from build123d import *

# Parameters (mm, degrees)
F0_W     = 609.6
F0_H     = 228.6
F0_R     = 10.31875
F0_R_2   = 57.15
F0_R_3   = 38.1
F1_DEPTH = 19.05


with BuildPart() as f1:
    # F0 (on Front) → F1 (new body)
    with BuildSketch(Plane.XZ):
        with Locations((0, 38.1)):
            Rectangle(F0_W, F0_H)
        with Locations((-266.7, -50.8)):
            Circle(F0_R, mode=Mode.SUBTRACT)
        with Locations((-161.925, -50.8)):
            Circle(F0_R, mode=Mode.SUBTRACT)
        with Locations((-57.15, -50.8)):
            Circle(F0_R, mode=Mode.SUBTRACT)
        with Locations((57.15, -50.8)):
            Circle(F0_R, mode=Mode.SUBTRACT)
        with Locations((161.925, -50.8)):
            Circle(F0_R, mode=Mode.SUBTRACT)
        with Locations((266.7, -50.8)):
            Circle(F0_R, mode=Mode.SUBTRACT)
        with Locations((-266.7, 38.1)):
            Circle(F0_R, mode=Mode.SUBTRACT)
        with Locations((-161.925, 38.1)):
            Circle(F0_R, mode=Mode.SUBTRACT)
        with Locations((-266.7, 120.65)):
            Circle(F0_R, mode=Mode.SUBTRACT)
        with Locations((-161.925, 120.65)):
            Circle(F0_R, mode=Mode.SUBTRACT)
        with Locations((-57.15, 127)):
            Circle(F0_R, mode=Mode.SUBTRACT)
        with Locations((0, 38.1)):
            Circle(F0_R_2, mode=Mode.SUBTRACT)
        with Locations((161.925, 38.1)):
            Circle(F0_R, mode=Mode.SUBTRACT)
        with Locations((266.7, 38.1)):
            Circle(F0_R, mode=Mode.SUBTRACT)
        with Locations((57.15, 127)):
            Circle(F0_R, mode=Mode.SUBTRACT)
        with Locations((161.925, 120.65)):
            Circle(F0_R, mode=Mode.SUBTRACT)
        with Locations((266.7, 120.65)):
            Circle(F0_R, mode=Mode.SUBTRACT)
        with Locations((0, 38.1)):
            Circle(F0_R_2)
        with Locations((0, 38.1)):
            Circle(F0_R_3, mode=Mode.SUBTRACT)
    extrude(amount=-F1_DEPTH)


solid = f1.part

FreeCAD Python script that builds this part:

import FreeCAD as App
import Part
import Sketcher
from FreeCAD import Vector
Q = App.Units.Quantity


def add_polygon(sketch, points):
    """Adds a closed chain of lines whose ends are joined by coincident constraints."""
    first, n = sketch.GeometryCount, len(points)
    for a, b in zip(points, points[1:] + points[:1]):
        sketch.addGeometry(Part.LineSegment(App.Vector(*a, 0), App.Vector(*b, 0)), False)
    for i in range(n):
        sketch.addConstraint(Sketcher.Constraint("Coincident", first + i, 2, first + (i + 1) % n, 1))

doc = App.newDocument("Part")
params = doc.addObject("Spreadsheet::Sheet", "Params")
for row, (alias, value) in enumerate([
    ("sketch1_diameter", "3 in"),
    ("sketch1_width", "24 in"),
    ("sketch1_height", "9 in"),
    ("sketch1_diameter2", "0.8125 in"),
    ("pad1_length", "0.75 in"),
], start=1):
    params.set(f"A{row}", alias)
    params.set(f"B{row}", "=" + value)
    params.setAlias(f"B{row}", alias)

body = doc.addObject("PartDesign::Body", "Body")

sketch1 = body.newObject("Sketcher::SketchObject", "Sketch")
sketch1.AttachmentSupport = (doc.getObject("XZ_Plane"), [""])
sketch1.MapMode = "FlatFace"
add_polygon(sketch1, [(-305, 152), (-305, -76), (305, -76), (305, 152)])
sketch1.addGeometry(Part.Circle(Vector(-267, -51, 0), Vector(0, 0, 1), 10), False)
sketch1.addGeometry(Part.Circle(Vector(-162, -51, 0), Vector(0, 0, 1), 10), False)
sketch1.addGeometry(Part.Circle(Vector(-57, -51, 0), Vector(0, 0, 1), 10), False)
sketch1.addGeometry(Part.Circle(Vector(57, -51, 0), Vector(0, 0, 1), 10), False)
sketch1.addGeometry(Part.Circle(Vector(162, -51, 0), Vector(0, 0, 1), 10), False)
sketch1.addGeometry(Part.Circle(Vector(267, -51, 0), Vector(0, 0, 1), 10), False)
sketch1.addGeometry(Part.Circle(Vector(-267, 38, 0), Vector(0, 0, 1), 10), False)
sketch1.addGeometry(Part.Circle(Vector(-162, 38, 0), Vector(0, 0, 1), 10), False)
sketch1.addGeometry(Part.Circle(Vector(-267, 121, 0), Vector(0, 0, 1), 10), False)
sketch1.addGeometry(Part.Circle(Vector(-162, 121, 0), Vector(0, 0, 1), 10), False)
sketch1.addGeometry(Part.Circle(Vector(-57, 127, 0), Vector(0, 0, 1), 10), False)
sketch1.addGeometry(Part.Circle(Vector(0, 38, 0), Vector(0, 0, 1), 38), False)
sketch1.addGeometry(Part.Circle(Vector(162, 38, 0), Vector(0, 0, 1), 10), False)
sketch1.addGeometry(Part.Circle(Vector(267, 38, 0), Vector(0, 0, 1), 10), False)
sketch1.addGeometry(Part.Circle(Vector(57, 127, 0), Vector(0, 0, 1), 10), False)
sketch1.addGeometry(Part.Circle(Vector(162, 121, 0), Vector(0, 0, 1), 10), False)
sketch1.addGeometry(Part.Circle(Vector(267, 121, 0), Vector(0, 0, 1), 10), False)
sketch1.addConstraint([
    Sketcher.Constraint("Vertical", 0),
    Sketcher.Constraint("Horizontal", 1),
    Sketcher.Constraint("Vertical", 2),
    Sketcher.Constraint("Horizontal", 3),
    Sketcher.Constraint("Equal", 4, 5),
    Sketcher.Constraint("Equal", 5, 6),
    Sketcher.Constraint("Equal", 6, 7),
    Sketcher.Constraint("Equal", 7, 8),
    Sketcher.Constraint("Equal", 8, 9),
    Sketcher.Constraint("Equal", 9, 10),
    Sketcher.Constraint("Equal", 10, 11),
    Sketcher.Constraint("Equal", 11, 12),
    Sketcher.Constraint("Equal", 12, 13),
    Sketcher.Constraint("Equal", 13, 14),
    Sketcher.Constraint("Equal", 14, 16),
    Sketcher.Constraint("Equal", 16, 17),
    Sketcher.Constraint("Equal", 17, 18),
    Sketcher.Constraint("Equal", 18, 19),
    Sketcher.Constraint("Equal", 19, 20),
    Sketcher.Constraint("Symmetric", 6, 3, 7, 3, -2),
    Sketcher.Constraint("Symmetric", 5, 3, 8, 3, -2),
    Sketcher.Constraint("Symmetric", 4, 3, 9, 3, -2),
    Sketcher.Constraint("Symmetric", 11, 3, 16, 3, -2),
    Sketcher.Constraint("Symmetric", 10, 3, 17, 3, -2),
    Sketcher.Constraint("Symmetric", 14, 3, 18, 3, -2),
    Sketcher.Constraint("Symmetric", 13, 3, 19, 3, -2),
    Sketcher.Constraint("Symmetric", 12, 3, 20, 3, -2),
    Sketcher.Constraint("PointOnObject", 15, 3, -2),
    Sketcher.Constraint("Horizontal", 4, 3, 5, 3),
    Sketcher.Constraint("Horizontal", 5, 3, 6, 3),
    Sketcher.Constraint("Horizontal", 10, 3, 11, 3),
    Sketcher.Constraint("Horizontal", 12, 3, 13, 3),
    Sketcher.Constraint("Horizontal", 11, 3, 15, 3),
    Sketcher.Constraint("Vertical", 4, 3, 10, 3),
    Sketcher.Constraint("Vertical", 5, 3, 11, 3),
    Sketcher.Constraint("Vertical", 10, 3, 12, 3),
    Sketcher.Constraint("Vertical", 11, 3, 13, 3),
    Sketcher.Constraint("Vertical", 6, 3, 14, 3),
    Sketcher.Constraint("Diameter", 15, Q("3 in")),
    Sketcher.Constraint("DistanceX", 1, 1, 1, 2, Q("24 in")),
    Sketcher.Constraint("DistanceY", 0, 2, 0, 1, Q("9 in")),
    Sketcher.Constraint("Diameter", 4, Q("0.8125 in")),
    Sketcher.Constraint("DistanceY", 4, 3, -1, 1, Q("2 in")),
    Sketcher.Constraint("DistanceY", -1, 1, 14, 3, Q("5 in")),
    Sketcher.Constraint("DistanceX", 0, 2, -1, 1, Q("12 in")),
    Sketcher.Constraint("DistanceY", 0, 2, -1, 1, Q("3 in")),
    Sketcher.Constraint("DistanceX", 4, 3, 9, 3, Q("21 in")),
    Sketcher.Constraint("DistanceY", -1, 1, 10, 3, Q("1.5 in")),
    Sketcher.Constraint("DistanceX", 6, 3, 7, 3, Q("4.5 in")),
    Sketcher.Constraint("DistanceY", -1, 1, 12, 3, Q("4.75 in")),
    Sketcher.Constraint("DistanceX", 5, 3, 8, 3, Q("12.75 in")),
])
sketch1.setExpression("Constraints[42]", "Params.sketch1_diameter")
sketch1.setExpression("Constraints[43]", "Params.sketch1_width")
sketch1.setExpression("Constraints[44]", "Params.sketch1_height")
sketch1.setExpression("Constraints[45]", "Params.sketch1_diameter2")
pad1 = body.newObject("PartDesign::Pad", "Pad")
pad1.Profile = sketch1
pad1.setExpression("Length", "Params.pad1_length")
pad1.Reversed = True

doc.recompute()
